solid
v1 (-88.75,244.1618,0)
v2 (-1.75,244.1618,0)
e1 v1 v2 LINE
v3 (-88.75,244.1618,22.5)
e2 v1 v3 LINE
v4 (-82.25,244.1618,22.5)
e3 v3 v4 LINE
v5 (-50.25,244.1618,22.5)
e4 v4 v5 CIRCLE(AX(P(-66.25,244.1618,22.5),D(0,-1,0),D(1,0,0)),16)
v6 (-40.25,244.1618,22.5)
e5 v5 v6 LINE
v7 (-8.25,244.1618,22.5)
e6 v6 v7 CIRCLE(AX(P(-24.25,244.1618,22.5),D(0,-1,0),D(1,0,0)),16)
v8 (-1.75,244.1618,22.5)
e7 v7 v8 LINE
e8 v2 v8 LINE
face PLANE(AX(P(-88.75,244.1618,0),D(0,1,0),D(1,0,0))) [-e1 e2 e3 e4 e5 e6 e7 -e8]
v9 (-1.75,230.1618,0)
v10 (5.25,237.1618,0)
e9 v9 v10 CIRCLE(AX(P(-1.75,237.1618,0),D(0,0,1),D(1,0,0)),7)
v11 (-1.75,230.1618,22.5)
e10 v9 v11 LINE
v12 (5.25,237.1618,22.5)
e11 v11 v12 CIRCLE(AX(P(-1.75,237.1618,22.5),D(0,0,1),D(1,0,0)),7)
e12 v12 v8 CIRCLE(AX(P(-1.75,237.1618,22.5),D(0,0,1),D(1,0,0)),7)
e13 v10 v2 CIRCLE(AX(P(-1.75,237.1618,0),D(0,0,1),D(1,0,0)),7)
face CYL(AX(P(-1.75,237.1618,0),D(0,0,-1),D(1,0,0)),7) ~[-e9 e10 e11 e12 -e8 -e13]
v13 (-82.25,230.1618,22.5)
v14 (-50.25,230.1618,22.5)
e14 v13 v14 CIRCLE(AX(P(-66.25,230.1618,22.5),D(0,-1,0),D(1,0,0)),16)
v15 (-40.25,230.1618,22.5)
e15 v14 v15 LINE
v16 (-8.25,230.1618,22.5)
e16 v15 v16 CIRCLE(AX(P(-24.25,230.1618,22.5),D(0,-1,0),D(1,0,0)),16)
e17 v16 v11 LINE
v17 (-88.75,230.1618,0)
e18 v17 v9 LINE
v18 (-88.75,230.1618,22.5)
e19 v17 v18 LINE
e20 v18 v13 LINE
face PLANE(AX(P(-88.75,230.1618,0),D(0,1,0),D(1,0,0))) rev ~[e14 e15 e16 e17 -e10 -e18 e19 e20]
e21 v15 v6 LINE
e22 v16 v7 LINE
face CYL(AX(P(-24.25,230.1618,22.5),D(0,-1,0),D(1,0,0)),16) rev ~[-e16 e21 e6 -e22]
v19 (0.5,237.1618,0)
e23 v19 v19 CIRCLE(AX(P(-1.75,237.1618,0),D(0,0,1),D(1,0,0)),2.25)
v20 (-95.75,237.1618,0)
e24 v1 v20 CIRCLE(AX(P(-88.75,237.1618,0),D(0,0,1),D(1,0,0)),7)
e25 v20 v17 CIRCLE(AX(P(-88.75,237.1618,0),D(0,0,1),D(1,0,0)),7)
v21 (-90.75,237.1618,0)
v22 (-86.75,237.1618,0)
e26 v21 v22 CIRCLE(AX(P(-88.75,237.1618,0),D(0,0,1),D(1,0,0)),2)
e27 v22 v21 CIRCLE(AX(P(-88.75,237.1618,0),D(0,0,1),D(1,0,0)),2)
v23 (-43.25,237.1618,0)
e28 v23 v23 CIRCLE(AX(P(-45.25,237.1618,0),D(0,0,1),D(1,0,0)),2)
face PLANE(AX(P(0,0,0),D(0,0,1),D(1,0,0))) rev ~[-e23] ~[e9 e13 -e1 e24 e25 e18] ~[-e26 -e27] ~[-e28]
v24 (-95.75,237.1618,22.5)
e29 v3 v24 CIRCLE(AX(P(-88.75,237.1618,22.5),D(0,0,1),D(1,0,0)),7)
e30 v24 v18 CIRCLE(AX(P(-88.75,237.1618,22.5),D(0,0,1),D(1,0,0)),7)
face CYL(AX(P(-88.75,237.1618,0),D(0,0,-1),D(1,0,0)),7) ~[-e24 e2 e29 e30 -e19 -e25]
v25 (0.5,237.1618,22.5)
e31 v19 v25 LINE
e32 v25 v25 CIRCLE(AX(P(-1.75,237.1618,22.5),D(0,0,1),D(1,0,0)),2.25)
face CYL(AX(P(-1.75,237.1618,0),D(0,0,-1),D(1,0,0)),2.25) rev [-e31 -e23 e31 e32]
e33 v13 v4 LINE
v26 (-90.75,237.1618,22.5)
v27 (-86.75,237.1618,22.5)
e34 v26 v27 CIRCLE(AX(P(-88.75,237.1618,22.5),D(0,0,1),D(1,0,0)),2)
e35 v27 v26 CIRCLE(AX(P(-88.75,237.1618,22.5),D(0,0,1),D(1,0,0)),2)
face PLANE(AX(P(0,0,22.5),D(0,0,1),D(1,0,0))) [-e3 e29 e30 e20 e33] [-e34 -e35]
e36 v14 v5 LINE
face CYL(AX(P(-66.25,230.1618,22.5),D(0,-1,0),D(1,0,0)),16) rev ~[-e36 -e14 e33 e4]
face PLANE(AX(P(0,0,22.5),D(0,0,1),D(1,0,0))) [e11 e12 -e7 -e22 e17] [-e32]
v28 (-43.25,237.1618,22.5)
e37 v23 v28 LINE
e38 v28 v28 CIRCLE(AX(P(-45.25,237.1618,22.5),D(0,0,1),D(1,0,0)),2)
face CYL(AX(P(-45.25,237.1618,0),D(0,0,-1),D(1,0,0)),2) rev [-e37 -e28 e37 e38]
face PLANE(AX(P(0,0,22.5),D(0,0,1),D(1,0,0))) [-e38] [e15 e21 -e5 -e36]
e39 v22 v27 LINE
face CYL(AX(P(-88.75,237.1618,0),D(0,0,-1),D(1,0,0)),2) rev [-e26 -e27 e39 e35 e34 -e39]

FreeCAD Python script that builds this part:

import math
import FreeCAD as App
import Part
import Sketcher
from FreeCAD import Vector
Q = App.Units.Quantity

doc = App.newDocument("Part")
body = doc.addObject("PartDesign::Body", "Body")

# Sketch on XY plane
sketch1 = body.newObject("Sketcher::SketchObject", "Sketch")
sketch1.AttachmentSupport = (doc.getObject("XY_Plane"), [""])
sketch1.MapMode = "FlatFace"
sketch1.addGeometry(Part.ArcOfCircle(Part.Circle(Vector(-88.8, 237.2, 0), Vector(0, 0, 1), 7), math.radians(90), math.radians(180)), False)
sketch1.addGeometry(Part.ArcOfCircle(Part.Circle(Vector(-88.8, 237.2, 0), Vector(0, 0, 1), 7), math.radians(180), math.radians(270)), False)
sketch1.addGeometry(Part.LineSegment(Vector(-88.8, 230.2, 0), Vector(-1.8, 230.2, 0)), False)
sketch1.addGeometry(Part.ArcOfCircle(Part.Circle(Vector(-1.8, 237.2, 0), Vector(0, 0, 1), 7), math.radians(-90), math.radians(0)), False)
sketch1.addGeometry(Part.ArcOfCircle(Part.Circle(Vector(-1.8, 237.2, 0), Vector(0, 0, 1), 7), math.radians(0), math.radians(90)), False)
sketch1.addGeometry(Part.LineSegment(Vector(-1.8, 244.2, 0), Vector(-88.8, 244.2, 0)), False)
sketch1.addGeometry(Part.Circle(Vector(-88.8, 237.2, 0), Vector(0, 0, 1), 2), False)
sketch1.addGeometry(Part.Circle(Vector(-45.2, 237.2, 0), Vector(0, 0, 1), 2), False)
sketch1.addGeometry(Part.Circle(Vector(-1.8, 237.2, 0), Vector(0, 0, 1), 2.2), False)
sketch1.addConstraint(Sketcher.Constraint("Tangent", 0, 2, 1, 1))
sketch1.addConstraint(Sketcher.Constraint("Tangent", 1, 2, 2, 1))
sketch1.addConstraint(Sketcher.Constraint("Tangent", 2, 2, 3, 1))
sketch1.addConstraint(Sketcher.Constraint("Tangent", 3, 2, 4, 1))
sketch1.addConstraint(Sketcher.Constraint("Tangent", 4, 2, 5, 1))
sketch1.addConstraint(Sketcher.Constraint("Tangent", 5, 2, 0, 1))
sketch1.addConstraint(Sketcher.Constraint("Horizontal", 2))
sketch1.addConstraint(Sketcher.Constraint("Horizontal", 5))
sketch1.addConstraint(Sketcher.Constraint("Coincident", 6, 3, 0, 3))
sketch1.addConstraint(Sketcher.Constraint("Coincident", 8, 3, 3, 3))
sketch1.addConstraint(Sketcher.Constraint("Equal", 0, 1))
sketch1.addConstraint(Sketcher.Constraint("Equal", 1, 3))
sketch1.addConstraint(Sketcher.Constraint("Equal", 6, 7))
sketch1.addConstraint(Sketcher.Constraint("Horizontal", 6, 3, 7, 3))
sketch1.addConstraint(Sketcher.Constraint("Horizontal", 8, 3, 0, 2))
sketch1.addConstraint(Sketcher.Constraint("Horizontal", 0, 2, 3, 2))
sketch1.addConstraint(Sketcher.Constraint("Radius", 0, Q("7 mm")))
sketch1.addConstraint(Sketcher.Constraint("Diameter", 6, Q("4 mm")))
sketch1.addConstraint(Sketcher.Constraint("Diameter", 8, Q("4.5 mm")))
sketch1.addConstraint(Sketcher.Constraint("DistanceX", 2, 1, 2, 2, Q("87 mm")))
sketch1.addConstraint(Sketcher.Constraint("DistanceX", 0, 3, 7, 3, Q("43.5 mm")))
sketch1.addConstraint(Sketcher.Constraint("DistanceX", 0, 3, -1, 1, Q("88.75 mm")))
sketch1.addConstraint(Sketcher.Constraint("DistanceY", -1, 1, 0, 3, Q("237.1618 mm")))
pad1 = body.newObject("PartDesign::Pad", "Pad")
pad1.Profile = sketch1
pad1.Length = 22.5

# Sketch on XZ plane
sketch2 = body.newObject("Sketcher::SketchObject", "Sketch001")
sketch2.AttachmentSupport = (doc.getObject("XZ_Plane"), [""])
sketch2.MapMode = "FlatFace"
sketch2.AttachmentOffset = App.Placement(Vector(0, 0, -230.1618), App.Rotation())
sketch2.addGeometry(Part.ArcOfCircle(Part.Circle(Vector(-66, 22, 0), Vector(0, 0, 1), 16), math.radians(180), math.radians(360)), False)
sketch2.addGeometry(Part.LineSegment(Vector(-50, 22, 0), Vector(-82, 22, 0)), False)
sketch2.addGeometry(Part.LineSegment(Vector(-8, 22, 0), Vector(-40, 22, 0)), False)
sketch2.addGeometry(Part.ArcOfCircle(Part.Circle(Vector(-24, 22, 0), Vector(0, 0, 1), 16), math.radians(180), math.radians(360)), False)
sketch2.addConstraint(Sketcher.Constraint("Coincident", 0, 1, 1, 2))
sketch2.addConstraint(Sketcher.Constraint("Coincident", 1, 1, 0, 2))
sketch2.addConstraint(Sketcher.Constraint("Coincident", 2, 1, 3, 2))
sketch2.addConstraint(Sketcher.Constraint("Coincident", 3, 1, 2, 2))
sketch2.addConstraint(Sketcher.Constraint("Horizontal", 1))
sketch2.addConstraint(Sketcher.Constraint("Horizontal", 2))
sketch2.addConstraint(Sketcher.Constraint("Equal", 0, 3))
sketch2.addConstraint(Sketcher.Constraint("Horizontal", 0, 3, 3, 3))
sketch2.addConstraint(Sketcher.Constraint("Horizontal", 3, 3, 0, 1))
sketch2.addConstraint(Sketcher.Constraint("Horizontal", 1, 1, 2, 1))
sketch2.addConstraint(Sketcher.Constraint("Radius", 0, Q("16 mm")))
sketch2.addConstraint(Sketcher.Constraint("DistanceX", 0, 3, 3, 3, Q("42 mm")))
sketch2.addConstraint(Sketcher.Constraint("DistanceY", -1, 1, 0, 3, Q("22.5 mm")))
sketch2.addConstraint(Sketcher.Constraint("DistanceX", 0, 3, -1, 1, Q("66.25 mm")))
pocket1 = body.newObject("PartDesign::Pocket", "Pocket")
pocket1.Profile = sketch2
pocket1.Type = "ThroughAll"

doc.recompute()
